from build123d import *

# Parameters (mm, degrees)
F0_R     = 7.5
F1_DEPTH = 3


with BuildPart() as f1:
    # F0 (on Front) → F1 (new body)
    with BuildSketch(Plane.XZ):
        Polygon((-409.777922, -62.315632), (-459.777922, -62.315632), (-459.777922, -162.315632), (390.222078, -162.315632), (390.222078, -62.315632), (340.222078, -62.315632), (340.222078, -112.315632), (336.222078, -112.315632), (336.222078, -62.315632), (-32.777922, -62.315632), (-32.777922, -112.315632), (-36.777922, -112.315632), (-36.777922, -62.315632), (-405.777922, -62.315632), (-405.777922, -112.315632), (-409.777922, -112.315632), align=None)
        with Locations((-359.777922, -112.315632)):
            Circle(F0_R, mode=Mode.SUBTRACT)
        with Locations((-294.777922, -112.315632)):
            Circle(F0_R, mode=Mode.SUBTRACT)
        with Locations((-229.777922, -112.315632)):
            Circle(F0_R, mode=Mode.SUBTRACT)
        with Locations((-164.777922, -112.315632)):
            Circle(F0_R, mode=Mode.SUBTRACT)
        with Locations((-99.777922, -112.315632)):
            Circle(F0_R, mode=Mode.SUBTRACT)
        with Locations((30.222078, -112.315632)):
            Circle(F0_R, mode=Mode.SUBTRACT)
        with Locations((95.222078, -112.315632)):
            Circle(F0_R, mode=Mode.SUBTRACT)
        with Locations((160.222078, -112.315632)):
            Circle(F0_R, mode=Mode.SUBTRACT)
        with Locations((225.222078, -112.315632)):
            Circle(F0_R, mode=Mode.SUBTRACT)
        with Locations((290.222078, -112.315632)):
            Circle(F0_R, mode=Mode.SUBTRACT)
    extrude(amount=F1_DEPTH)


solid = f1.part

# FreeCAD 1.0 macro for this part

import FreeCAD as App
import Part
import Sketcher
from FreeCAD import Vector


def add_polygon(sketch, points):
    """Adds a closed chain of lines whose ends are joined by coincident constraints."""
    first, n = sketch.GeometryCount, len(points)
    for a, b in zip(points, points[1:] + points[:1]):
        sketch.addGeometry(Part.LineSegment(App.Vector(*a, 0), App.Vector(*b, 0)), False)
    for i in range(n):
        sketch.addConstraint(Sketcher.Constraint("Coincident", first + i, 2, first + (i + 1) % n, 1))

doc = App.newDocument("Part")
body = doc.addObject("PartDesign::Body", "Body")

sketch1 = doc.addObject("Sketcher::SketchObject", "Sketch")
body.addObject(sketch1)
sketch1.AttachmentSupport = (doc.XZ_Plane, [""])
sketch1.MapMode = "FlatFace"
add_polygon(sketch1, [(-409.777922, -62.315632), (-459.777922, -62.315632), (-459.777922, -162.315632), (390.222078, -162.315632), (390.222078, -62.315632), (340.222078, -62.315632), (340.222078, -112.315632), (336.222078, -112.315632), (336.222078, -62.315632), (-32.777922, -62.315632), (-32.777922, -112.315632), (-36.777922, -112.315632), (-36.777922, -62.315632), (-405.777922, -62.315632), (-405.777922, -112.315632), (-409.777922, -112.315632)])
sketch1.addGeometry(Part.Circle(Vector(-359.777922, -112.315632, 0), Vector(0, 0, 1), 7.5), False)
sketch1.addGeometry(Part.Circle(Vector(-294.777922, -112.315632, 0), Vector(0, 0, 1), 7.5), False)
sketch1.addGeometry(Part.Circle(Vector(-229.777922, -112.315632, 0), Vector(0, 0, 1), 7.5), False)
sketch1.addGeometry(Part.Circle(Vector(-164.777922, -112.315632, 0), Vector(0, 0, 1), 7.5), False)
sketch1.addGeometry(Part.Circle(Vector(-99.777922, -112.315632, 0), Vector(0, 0, 1), 7.5), False)
sketch1.addGeometry(Part.Circle(Vector(30.222078, -112.315632, 0), Vector(0, 0, 1), 7.5), False)
sketch1.addGeometry(Part.Circle(Vector(95.222078, -112.315632, 0), Vector(0, 0, 1), 7.5), False)
sketch1.addGeometry(Part.Circle(Vector(160.222078, -112.315632, 0), Vector(0, 0, 1), 7.5), False)
sketch1.addGeometry(Part.Circle(Vector(225.222078, -112.315632, 0), Vector(0, 0, 1), 7.5), False)
sketch1.addGeometry(Part.Circle(Vector(290.222078, -112.315632, 0), Vector(0, 0, 1), 7.5), False)
sketch1.addConstraint([
    Sketcher.Constraint("Horizontal", 0),
    Sketcher.Constraint("Vertical", 1),
    Sketcher.Constraint("Horizontal", 2),
    Sketcher.Constraint("Vertical", 3),
    Sketcher.Constraint("Horizontal", 4),
    Sketcher.Constraint("Vertical", 5),
    Sketcher.Constraint("Horizontal", 6),
    Sketcher.Constraint("Vertical", 7),
    Sketcher.Constraint("Horizontal", 8),
    Sketcher.Constraint("Vertical", 9),
    Sketcher.Constraint("Horizontal", 10),
    Sketcher.Constraint("Vertical", 11),
    Sketcher.Constraint("Horizontal", 12),
    Sketcher.Constraint("Vertical", 13),
    Sketcher.Constraint("Horizontal", 14),
    Sketcher.Constraint("Vertical", 15),
    Sketcher.Constraint("Equal", 16, 17),
    Sketcher.Constraint("Equal", 17, 18),
    Sketcher.Constraint("Equal", 18, 19),
    Sketcher.Constraint("Equal", 19, 20),
    Sketcher.Constraint("Equal", 20, 21),
    Sketcher.Constraint("Equal", 21, 22),
    Sketcher.Constraint("Equal", 22, 23),
    Sketcher.Constraint("Equal", 23, 24),
    Sketcher.Constraint("Equal", 24, 25),
    Sketcher.Constraint("Horizontal", 16, 3, 17, 3),
    Sketcher.Constraint("Horizontal", 17, 3, 18, 3),
    Sketcher.Constraint("Horizontal", 18, 3, 19, 3),
    Sketcher.Constraint("Horizontal", 19, 3, 20, 3),
    Sketcher.Constraint("Horizontal", 20, 3, 21, 3),
    Sketcher.Constraint("Horizontal", 21, 3, 22, 3),
    Sketcher.Constraint("Horizontal", 22, 3, 23, 3),
    Sketcher.Constraint("Horizontal", 23, 3, 24, 3),
    Sketcher.Constraint("Horizontal", 24, 3, 25, 3),
    Sketcher.Constraint("Horizontal", 0, 2, 3, 2),
    Sketcher.Constraint("Horizontal", 25, 3, 5, 2),
    Sketcher.Constraint("Horizontal", 4, 2, 7, 2),
    Sketcher.Constraint("Horizontal", 6, 2, 9, 2),
    Sketcher.Constraint("Horizontal", 8, 2, 11, 2),
    Sketcher.Constraint("Horizontal", 10, 2, 13, 2),
    Sketcher.Constraint("Equal", 0, 4),
    Sketcher.Constraint("Equal", 6, 10),
    Sketcher.Constraint("Equal", 8, 12),
    Sketcher.Constraint("Equal", 10, 14),
    Sketcher.Constraint("Equal", 4, 5),
    Sketcher.Constraint("Diameter", 16, 15.0),
    Sketcher.Constraint("DistanceX", 0, 2, 0, 1, 50.0),
    Sketcher.Constraint("DistanceX", 2, 1, 2, 2, 850.0),
    Sketcher.Constraint("DistanceX", 6, 2, 6, 1, 4.0),
    Sketcher.Constraint("DistanceY", 1, 2, 1, 1, 100.0),
    Sketcher.Constraint("DistanceX", 16, 3, 17, 3, 65.0),
    Sketcher.Constraint("DistanceX", 17, 3, 18, 3, 65.0),
    Sketcher.Constraint("DistanceX", 18, 3, 19, 3, 65.0),
    Sketcher.Constraint("DistanceX", 19, 3, 20, 3, 65.0),
    Sketcher.Constraint("DistanceX", 20, 3, 21, 3, 130.0),
    Sketcher.Constraint("DistanceX", 21, 3, 22, 3, 65.0),
    Sketcher.Constraint("DistanceX", 22, 3, 23, 3, 65.0),
    Sketcher.Constraint("DistanceX", 23, 3, 24, 3, 65.0),
    Sketcher.Constraint("DistanceX", 24, 3, 25, 3, 65.0),
    Sketcher.Constraint("DistanceX", 0, 2, 16, 3, 100.0),
    Sketcher.Constraint("DistanceX", 16, 3, -1, 1, 359.777922),
    Sketcher.Constraint("DistanceY", 16, 3, -1, 1, 112.315632),
])
pad1 = doc.addObject("PartDesign::Pad", "Pad")
body.addObject(pad1)
pad1.Profile = sketch1
pad1.Length = 3

doc.recompute()
